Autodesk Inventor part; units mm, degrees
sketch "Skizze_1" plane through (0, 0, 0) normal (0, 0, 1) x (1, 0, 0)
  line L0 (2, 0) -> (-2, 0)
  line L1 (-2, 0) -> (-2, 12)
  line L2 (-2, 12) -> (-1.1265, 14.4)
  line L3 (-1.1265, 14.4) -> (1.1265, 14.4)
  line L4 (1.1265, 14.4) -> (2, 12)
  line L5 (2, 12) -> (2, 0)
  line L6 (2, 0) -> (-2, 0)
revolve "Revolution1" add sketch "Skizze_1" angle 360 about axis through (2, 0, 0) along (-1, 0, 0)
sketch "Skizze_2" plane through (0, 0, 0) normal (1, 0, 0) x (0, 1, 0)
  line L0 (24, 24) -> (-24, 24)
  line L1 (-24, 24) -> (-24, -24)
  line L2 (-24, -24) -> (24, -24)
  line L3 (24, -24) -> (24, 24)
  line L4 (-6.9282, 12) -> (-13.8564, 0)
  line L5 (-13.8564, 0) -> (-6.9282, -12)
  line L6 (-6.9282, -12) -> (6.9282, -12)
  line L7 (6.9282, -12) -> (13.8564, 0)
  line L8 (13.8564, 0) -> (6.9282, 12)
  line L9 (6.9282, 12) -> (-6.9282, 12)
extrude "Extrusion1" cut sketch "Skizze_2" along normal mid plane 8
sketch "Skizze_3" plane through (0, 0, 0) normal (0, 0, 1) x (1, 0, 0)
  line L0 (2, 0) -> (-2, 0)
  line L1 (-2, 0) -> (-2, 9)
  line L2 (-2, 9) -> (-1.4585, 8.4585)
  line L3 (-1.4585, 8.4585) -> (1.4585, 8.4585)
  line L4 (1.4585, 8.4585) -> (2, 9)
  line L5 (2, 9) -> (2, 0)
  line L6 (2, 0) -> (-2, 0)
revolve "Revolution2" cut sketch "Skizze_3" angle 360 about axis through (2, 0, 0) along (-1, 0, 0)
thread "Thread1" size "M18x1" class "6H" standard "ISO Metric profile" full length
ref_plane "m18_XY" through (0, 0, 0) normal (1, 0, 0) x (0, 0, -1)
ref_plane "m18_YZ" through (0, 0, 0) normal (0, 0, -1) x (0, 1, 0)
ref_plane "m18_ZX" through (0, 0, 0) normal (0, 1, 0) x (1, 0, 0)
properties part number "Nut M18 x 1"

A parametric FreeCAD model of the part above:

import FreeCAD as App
import Part
import Sketcher

V = App.Vector
Q = App.Units.Quantity

doc = App.newDocument("Part")
body = doc.addObject("PartDesign::Body", "Body")

# Sketch on XY plane
sketch1 = doc.addObject("Sketcher::SketchObject", "Sketch")
body.addObject(sketch1)
sketch1.AttachmentSupport = (doc.XY_Plane, [""])
sketch1.MapMode = "FlatFace"
sketch1.addGeometry([
    Part.LineSegment(V(-2, 0, 0), V(2, 0, 0)),  # 0
    Part.LineSegment(V(2, 0, 0), V(2, 12, 0)),  # 1
    Part.LineSegment(V(2, 12, 0), V(1.1, 14.4, 0)),  # 2
    Part.LineSegment(V(1.1, 14.4, 0), V(-1.1, 14.4, 0)),  # 3
    Part.LineSegment(V(-1.1, 14.4, 0), V(-2, 12, 0)),  # 4
    Part.LineSegment(V(-2, 12, 0), V(-2, 0, 0)),  # 5
], False)
sketch1.addConstraint([
    Sketcher.Constraint("Coincident", 0, 2, 1, 1),
    Sketcher.Constraint("Coincident", 1, 2, 2, 1),
    Sketcher.Constraint("Coincident", 2, 2, 3, 1),
    Sketcher.Constraint("Coincident", 3, 2, 4, 1),
    Sketcher.Constraint("Coincident", 4, 2, 5, 1),
    Sketcher.Constraint("Coincident", 5, 2, 0, 1),
    Sketcher.Constraint("Horizontal", 0),
    Sketcher.Constraint("Vertical", 1),
    Sketcher.Constraint("Horizontal", 3),
    Sketcher.Constraint("Vertical", 5),
    Sketcher.Constraint("Symmetric", 0, 2, 5, 2, -1, 1),
    Sketcher.Constraint("Horizontal", 1, 2, 4, 2),
    Sketcher.Constraint("Equal", 2, 4),
    Sketcher.Constraint("DistanceX", 0, 1, 0, 2, 4.0),
    Sketcher.Constraint("DistanceY", 1, 1, 1, 2, 12.0),
    Sketcher.Constraint("Angle", 2, Q("109.9994 deg")),
    Sketcher.Constraint("DistanceY", -1, 1, 2, 2, 14.4),
])
revolution = doc.addObject("PartDesign::Revolution", "Revolution")
body.addObject(revolution)
revolution.Profile = sketch1
revolution.ReferenceAxis = (sketch1, ["H_Axis"])
revolution.Angle = 360

# Sketch on YZ plane
sketch2 = doc.addObject("Sketcher::SketchObject", "Sketch001")
body.addObject(sketch2)
sketch2.AttachmentSupport = (doc.YZ_Plane, [""])
sketch2.MapMode = "FlatFace"
sketch2.addGeometry([
    Part.LineSegment(V(24, -24, 0), V(24, 24, 0)),  # 0
    Part.LineSegment(V(24, 24, 0), V(-24, 24, 0)),  # 1
    Part.LineSegment(V(-24, 24, 0), V(-24, -24, 0)),  # 2
    Part.LineSegment(V(-24, -24, 0), V(24, -24, 0)),  # 3
    Part.LineSegment(V(-14, 0, 0), V(-7, 12, 0)),  # 4
    Part.LineSegment(V(-7, 12, 0), V(7, 12, 0)),  # 5
    Part.LineSegment(V(7, 12, 0), V(14, 0, 0)),  # 6
    Part.LineSegment(V(14, 0, 0), V(7, -12, 0)),  # 7
    Part.LineSegment(V(7, -12, 0), V(-7, -12, 0)),  # 8
    Part.LineSegment(V(-7, -12, 0), V(-14, 0, 0)),  # 9
], False)
sketch2.addConstraint([
    Sketcher.Constraint("Coincident", 0, 2, 1, 1),
    Sketcher.Constraint("Coincident", 1, 2, 2, 1),
    Sketcher.Constraint("Coincident", 2, 2, 3, 1),
    Sketcher.Constraint("Coincident", 3, 2, 0, 1),
    Sketcher.Constraint("Coincident", 4, 2, 5, 1),
    Sketcher.Constraint("Coincident", 5, 2, 6, 1),
    Sketcher.Constraint("Coincident", 6, 2, 7, 1),
    Sketcher.Constraint("Coincident", 7, 2, 8, 1),
    Sketcher.Constraint("Coincident", 8, 2, 9, 1),
    Sketcher.Constraint("Coincident", 9, 2, 4, 1),
    Sketcher.Constraint("Vertical", 0),
    Sketcher.Constraint("Horizontal", 1),
    Sketcher.Constraint("Vertical", 2),
    Sketcher.Constraint("Horizontal", 3),
    Sketcher.Constraint("Horizontal", 5),
    Sketcher.Constraint("Horizontal", 8),
    Sketcher.Constraint("Symmetric", 0, 2, 2, 2, -1, 1),
    Sketcher.Constraint("Symmetric", 4, 2, 7, 2, -1, 1),
    Sketcher.Constraint("Symmetric", 6, 2, 9, 2, -1, 1),
    Sketcher.Constraint("PointOnObject", 6, 2, -1),
    Sketcher.Constraint("Parallel", 6, 9),
    Sketcher.Constraint("Vertical", 5, 2, 7, 2),
    Sketcher.Constraint("Equal", 3, 0),
    Sketcher.Constraint("DistanceX", 1, 2, 1, 1, 48.0),
    Sketcher.Constraint("Angle", 4, Q("60 deg")),
    Sketcher.Constraint("DistanceY", -1, 1, 4, 2, 12.0),
    Sketcher.Constraint("DistanceX", 5, 1, 5, 2, 13.8564),
])
pocket1 = doc.addObject("PartDesign::Pocket", "Pocket")
body.addObject(pocket1)
pocket1.Profile = sketch2
pocket1.Length = 8
pocket1.Midplane = True

# Sketch on XY plane
sketch3 = doc.addObject("Sketcher::SketchObject", "Sketch002")
body.addObject(sketch3)
sketch3.AttachmentSupport = (doc.XY_Plane, [""])
sketch3.MapMode = "FlatFace"
sketch3.addGeometry([
    Part.LineSegment(V(-2, 0, 0), V(2, 0, 0)),  # 0
    Part.LineSegment(V(2, 0, 0), V(2, 9, 0)),  # 1
    Part.LineSegment(V(2, 9, 0), V(1.5, 8.5, 0)),  # 2
    Part.LineSegment(V(1.5, 8.5, 0), V(-1.5, 8.5, 0)),  # 3
    Part.LineSegment(V(-1.5, 8.5, 0), V(-2, 9, 0)),  # 4
    Part.LineSegment(V(-2, 9, 0), V(-2, 0, 0)),  # 5
], False)
sketch3.addConstraint([
    Sketcher.Constraint("Coincident", 0, 2, 1, 1),
    Sketcher.Constraint("Coincident", 1, 2, 2, 1),
    Sketcher.Constraint("Coincident", 2, 2, 3, 1),
    Sketcher.Constraint("Coincident", 3, 2, 4, 1),
    Sketcher.Constraint("Coincident", 4, 2, 5, 1),
    Sketcher.Constraint("Coincident", 5, 2, 0, 1),
    Sketcher.Constraint("Horizontal", 0),
    Sketcher.Constraint("Vertical", 1),
    Sketcher.Constraint("Horizontal", 3),
    Sketcher.Constraint("Vertical", 5),
    Sketcher.Constraint("Symmetric", 0, 2, 5, 2, -1, 1),
    Sketcher.Constraint("Perpendicular", 2, 4),
    Sketcher.Constraint("Horizontal", 1, 2, 4, 2),
    Sketcher.Constraint("Equal", 2, 4),
    Sketcher.Constraint("DistanceX", 0, 1, 0, 2, 4.0),
    Sketcher.Constraint("DistanceY", 1, 1, 1, 2, 9.0),
    Sketcher.Constraint("DistanceX", 3, 2, 3, 1, 2.917),
])
groove = doc.addObject("PartDesign::Groove", "Groove")
body.addObject(groove)
groove.Profile = sketch3
groove.ReferenceAxis = (sketch3, ["H_Axis"])
groove.Angle = 360

doc.recompute()
